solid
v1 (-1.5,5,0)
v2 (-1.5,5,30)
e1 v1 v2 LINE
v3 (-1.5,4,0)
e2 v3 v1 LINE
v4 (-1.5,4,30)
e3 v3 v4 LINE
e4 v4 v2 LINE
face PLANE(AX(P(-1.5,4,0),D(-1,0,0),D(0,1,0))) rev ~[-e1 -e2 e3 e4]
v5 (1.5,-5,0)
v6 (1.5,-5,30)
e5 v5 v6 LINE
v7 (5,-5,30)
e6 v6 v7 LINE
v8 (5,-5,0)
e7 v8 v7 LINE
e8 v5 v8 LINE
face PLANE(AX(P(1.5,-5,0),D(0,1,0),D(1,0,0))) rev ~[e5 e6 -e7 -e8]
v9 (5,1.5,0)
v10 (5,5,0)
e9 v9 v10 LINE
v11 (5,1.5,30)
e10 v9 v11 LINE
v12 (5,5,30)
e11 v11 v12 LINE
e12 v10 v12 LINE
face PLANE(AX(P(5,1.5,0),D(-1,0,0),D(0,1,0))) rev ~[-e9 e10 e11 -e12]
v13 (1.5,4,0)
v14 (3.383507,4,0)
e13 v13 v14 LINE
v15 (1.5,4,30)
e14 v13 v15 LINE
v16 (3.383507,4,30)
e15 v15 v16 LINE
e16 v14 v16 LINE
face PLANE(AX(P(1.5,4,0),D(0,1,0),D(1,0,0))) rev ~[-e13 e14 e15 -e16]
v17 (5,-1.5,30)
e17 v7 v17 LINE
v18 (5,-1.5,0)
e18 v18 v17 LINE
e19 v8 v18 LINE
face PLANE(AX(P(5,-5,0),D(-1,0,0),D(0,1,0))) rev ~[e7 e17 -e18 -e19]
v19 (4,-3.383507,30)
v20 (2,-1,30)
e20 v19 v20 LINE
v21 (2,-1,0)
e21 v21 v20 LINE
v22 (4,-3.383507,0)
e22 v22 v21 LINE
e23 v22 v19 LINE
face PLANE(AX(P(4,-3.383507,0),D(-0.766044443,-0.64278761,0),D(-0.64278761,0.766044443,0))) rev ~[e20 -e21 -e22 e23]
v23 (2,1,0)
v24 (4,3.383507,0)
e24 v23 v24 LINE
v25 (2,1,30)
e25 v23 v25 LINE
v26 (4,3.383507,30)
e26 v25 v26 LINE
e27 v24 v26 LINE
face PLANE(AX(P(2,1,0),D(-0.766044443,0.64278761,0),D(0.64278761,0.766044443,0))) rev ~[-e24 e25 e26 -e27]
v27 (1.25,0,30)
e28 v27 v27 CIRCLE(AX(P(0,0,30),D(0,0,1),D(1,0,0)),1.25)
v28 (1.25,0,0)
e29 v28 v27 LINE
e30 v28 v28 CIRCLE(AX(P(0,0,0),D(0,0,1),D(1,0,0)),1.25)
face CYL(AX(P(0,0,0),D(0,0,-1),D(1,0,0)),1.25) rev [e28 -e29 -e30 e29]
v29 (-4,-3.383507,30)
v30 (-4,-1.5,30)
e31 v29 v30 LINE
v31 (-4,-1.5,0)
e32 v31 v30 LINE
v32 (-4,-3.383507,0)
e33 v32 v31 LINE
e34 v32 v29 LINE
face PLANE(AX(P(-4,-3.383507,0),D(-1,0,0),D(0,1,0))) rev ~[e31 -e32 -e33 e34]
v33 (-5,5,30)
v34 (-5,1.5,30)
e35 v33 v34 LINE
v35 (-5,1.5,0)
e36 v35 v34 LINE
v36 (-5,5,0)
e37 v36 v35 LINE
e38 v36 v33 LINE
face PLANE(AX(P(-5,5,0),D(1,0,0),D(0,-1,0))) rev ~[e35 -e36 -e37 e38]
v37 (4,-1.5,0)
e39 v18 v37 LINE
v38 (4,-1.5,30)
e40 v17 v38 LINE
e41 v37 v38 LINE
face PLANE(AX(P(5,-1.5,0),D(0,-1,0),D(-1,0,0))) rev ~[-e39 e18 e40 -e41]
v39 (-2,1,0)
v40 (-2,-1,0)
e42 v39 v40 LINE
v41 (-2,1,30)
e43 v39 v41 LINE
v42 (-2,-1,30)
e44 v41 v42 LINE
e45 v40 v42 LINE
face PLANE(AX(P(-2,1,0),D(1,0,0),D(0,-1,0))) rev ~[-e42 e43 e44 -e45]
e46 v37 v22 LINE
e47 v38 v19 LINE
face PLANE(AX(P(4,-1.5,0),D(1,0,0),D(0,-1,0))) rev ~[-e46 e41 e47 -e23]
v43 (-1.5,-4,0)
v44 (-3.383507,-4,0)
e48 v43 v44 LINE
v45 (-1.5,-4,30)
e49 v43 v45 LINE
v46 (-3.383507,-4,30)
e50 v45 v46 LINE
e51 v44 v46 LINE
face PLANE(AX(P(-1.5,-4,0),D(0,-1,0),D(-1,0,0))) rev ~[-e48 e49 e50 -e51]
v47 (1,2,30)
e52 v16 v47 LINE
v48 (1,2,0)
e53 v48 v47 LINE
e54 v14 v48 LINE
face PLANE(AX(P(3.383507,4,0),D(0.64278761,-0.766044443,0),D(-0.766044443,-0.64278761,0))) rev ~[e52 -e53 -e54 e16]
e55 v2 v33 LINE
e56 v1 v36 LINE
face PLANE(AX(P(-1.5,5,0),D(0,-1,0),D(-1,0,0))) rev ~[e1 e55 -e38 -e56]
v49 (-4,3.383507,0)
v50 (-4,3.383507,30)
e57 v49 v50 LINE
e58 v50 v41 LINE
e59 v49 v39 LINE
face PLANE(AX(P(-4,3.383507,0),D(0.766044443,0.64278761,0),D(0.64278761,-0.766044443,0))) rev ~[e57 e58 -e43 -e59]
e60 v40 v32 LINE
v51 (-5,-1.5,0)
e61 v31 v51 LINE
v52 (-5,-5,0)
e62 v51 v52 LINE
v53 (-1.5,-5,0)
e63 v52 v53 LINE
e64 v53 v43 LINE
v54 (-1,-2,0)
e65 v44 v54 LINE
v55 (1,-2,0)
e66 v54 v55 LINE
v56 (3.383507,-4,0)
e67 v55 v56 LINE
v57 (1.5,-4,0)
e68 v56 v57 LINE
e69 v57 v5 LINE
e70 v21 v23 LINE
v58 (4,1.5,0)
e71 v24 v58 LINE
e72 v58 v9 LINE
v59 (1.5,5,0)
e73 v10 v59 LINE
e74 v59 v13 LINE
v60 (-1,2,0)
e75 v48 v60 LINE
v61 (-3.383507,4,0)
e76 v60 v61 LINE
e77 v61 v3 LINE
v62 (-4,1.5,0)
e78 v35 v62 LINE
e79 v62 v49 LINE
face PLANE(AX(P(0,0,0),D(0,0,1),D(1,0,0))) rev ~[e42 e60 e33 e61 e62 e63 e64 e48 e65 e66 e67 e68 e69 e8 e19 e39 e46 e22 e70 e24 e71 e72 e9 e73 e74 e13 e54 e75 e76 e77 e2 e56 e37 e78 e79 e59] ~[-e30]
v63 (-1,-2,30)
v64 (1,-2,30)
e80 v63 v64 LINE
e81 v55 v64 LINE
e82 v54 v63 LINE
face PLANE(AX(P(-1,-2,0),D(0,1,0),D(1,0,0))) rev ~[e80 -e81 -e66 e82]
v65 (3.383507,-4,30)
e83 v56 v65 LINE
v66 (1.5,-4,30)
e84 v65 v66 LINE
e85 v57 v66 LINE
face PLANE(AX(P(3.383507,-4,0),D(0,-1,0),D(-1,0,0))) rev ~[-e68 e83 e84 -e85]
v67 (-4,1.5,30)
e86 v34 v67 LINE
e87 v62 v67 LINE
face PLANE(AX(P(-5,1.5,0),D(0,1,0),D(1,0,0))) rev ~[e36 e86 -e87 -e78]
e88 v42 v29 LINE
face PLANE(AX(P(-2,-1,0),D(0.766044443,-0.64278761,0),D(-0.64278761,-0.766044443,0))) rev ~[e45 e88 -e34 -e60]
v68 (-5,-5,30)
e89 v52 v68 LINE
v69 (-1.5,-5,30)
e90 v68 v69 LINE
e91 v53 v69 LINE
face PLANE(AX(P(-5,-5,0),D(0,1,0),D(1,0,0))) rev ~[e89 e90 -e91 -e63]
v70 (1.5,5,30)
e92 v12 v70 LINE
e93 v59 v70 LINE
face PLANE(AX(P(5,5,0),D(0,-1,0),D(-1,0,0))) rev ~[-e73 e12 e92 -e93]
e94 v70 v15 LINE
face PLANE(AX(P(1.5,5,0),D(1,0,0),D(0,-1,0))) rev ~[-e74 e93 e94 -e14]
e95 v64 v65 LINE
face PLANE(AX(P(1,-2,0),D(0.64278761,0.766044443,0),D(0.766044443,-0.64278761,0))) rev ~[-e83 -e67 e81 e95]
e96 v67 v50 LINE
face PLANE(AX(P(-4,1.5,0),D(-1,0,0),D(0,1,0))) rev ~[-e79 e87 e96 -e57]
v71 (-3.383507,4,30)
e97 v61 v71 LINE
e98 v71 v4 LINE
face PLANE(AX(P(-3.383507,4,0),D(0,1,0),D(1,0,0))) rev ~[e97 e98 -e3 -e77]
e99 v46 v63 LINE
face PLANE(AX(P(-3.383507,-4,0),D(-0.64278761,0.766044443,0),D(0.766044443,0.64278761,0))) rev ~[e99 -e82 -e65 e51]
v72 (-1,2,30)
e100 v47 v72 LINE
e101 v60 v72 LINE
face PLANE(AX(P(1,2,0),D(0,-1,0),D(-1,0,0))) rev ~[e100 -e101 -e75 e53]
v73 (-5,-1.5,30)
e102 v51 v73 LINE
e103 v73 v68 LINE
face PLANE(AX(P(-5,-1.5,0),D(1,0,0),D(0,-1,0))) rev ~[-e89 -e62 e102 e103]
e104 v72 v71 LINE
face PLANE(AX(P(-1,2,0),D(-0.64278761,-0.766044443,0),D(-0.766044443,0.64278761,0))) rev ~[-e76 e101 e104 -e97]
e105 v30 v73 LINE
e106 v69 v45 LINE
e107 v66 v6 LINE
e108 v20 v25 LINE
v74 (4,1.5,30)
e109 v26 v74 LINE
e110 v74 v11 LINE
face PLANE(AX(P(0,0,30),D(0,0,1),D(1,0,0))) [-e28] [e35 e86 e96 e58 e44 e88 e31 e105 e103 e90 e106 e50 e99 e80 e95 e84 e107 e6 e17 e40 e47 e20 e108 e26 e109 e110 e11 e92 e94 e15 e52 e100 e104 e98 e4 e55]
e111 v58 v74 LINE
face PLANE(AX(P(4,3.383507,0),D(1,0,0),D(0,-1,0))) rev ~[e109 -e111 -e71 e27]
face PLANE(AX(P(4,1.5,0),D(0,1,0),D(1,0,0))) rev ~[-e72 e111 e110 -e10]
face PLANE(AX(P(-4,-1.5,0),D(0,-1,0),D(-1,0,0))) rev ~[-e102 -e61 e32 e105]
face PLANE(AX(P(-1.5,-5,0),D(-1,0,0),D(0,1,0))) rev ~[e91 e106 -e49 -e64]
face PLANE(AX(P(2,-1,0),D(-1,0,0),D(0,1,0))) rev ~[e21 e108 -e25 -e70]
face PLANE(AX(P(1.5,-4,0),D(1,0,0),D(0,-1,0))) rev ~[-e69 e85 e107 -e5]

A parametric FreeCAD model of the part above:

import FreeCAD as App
import Part
import Sketcher

V = App.Vector
Q = App.Units.Quantity

doc = App.newDocument("Part")
body = doc.addObject("PartDesign::Body", "Body")

# Sketch on XY plane
sketch1 = doc.addObject("Sketcher::SketchObject", "Sketch")
body.addObject(sketch1)
sketch1.AttachmentSupport = (doc.XY_Plane, [""])
sketch1.MapMode = "FlatFace"
sketch1.addGeometry(Part.LineSegment(V(-1, -2, 0), V(1, -2, 0)), False)
sketch1.addGeometry(Part.LineSegment(V(1, -2, 0), V(3.4, -4, 0)), False)
sketch1.addGeometry(Part.LineSegment(V(3.4, -4, 0), V(1.5, -4, 0)), False)
sketch1.addGeometry(Part.LineSegment(V(1.5, -4, 0), V(1.5, -5, 0)), False)
sketch1.addGeometry(Part.LineSegment(V(1.5, -5, 0), V(5, -5, 0)), False)
sketch1.addGeometry(Part.LineSegment(V(5, -5, 0), V(5, -1.5, 0)), False)
sketch1.addGeometry(Part.LineSegment(V(5, -1.5, 0), V(4, -1.5, 0)), False)
sketch1.addGeometry(Part.LineSegment(V(4, -1.5, 0), V(4, -3.4, 0)), False)
sketch1.addGeometry(Part.LineSegment(V(4, -3.4, 0), V(2, -1, 0)), False)
sketch1.addGeometry(Part.LineSegment(V(2, -1, 0), V(2, 1, 0)), False)
sketch1.addGeometry(Part.LineSegment(V(2, 1, 0), V(4, 3.4, 0)), False)
sketch1.addGeometry(Part.LineSegment(V(4, 3.4, 0), V(4, 1.5, 0)), False)
sketch1.addGeometry(Part.LineSegment(V(4, 1.5, 0), V(5, 1.5, 0)), False)
sketch1.addGeometry(Part.LineSegment(V(5, 1.5, 0), V(5, 5, 0)), False)
sketch1.addGeometry(Part.LineSegment(V(5, 5, 0), V(1.5, 5, 0)), False)
sketch1.addGeometry(Part.LineSegment(V(1.5, 5, 0), V(1.5, 4, 0)), False)
sketch1.addGeometry(Part.LineSegment(V(1.5, 4, 0), V(3.4, 4, 0)), False)
sketch1.addGeometry(Part.LineSegment(V(3.4, 4, 0), V(1, 2, 0)), False)
sketch1.addGeometry(Part.LineSegment(V(1, 2, 0), V(-1, 2, 0)), False)
sketch1.addGeometry(Part.LineSegment(V(-1, 2, 0), V(-3.4, 4, 0)), False)
sketch1.addGeometry(Part.LineSegment(V(-3.4, 4, 0), V(-1.5, 4, 0)), False)
sketch1.addGeometry(Part.LineSegment(V(-1.5, 4, 0), V(-1.5, 5, 0)), False)
sketch1.addGeometry(Part.LineSegment(V(-1.5, 5, 0), V(-5, 5, 0)), False)
sketch1.addGeometry(Part.LineSegment(V(-5, 5, 0), V(-5, 1.5, 0)), False)
sketch1.addGeometry(Part.LineSegment(V(-5, 1.5, 0), V(-4, 1.5, 0)), False)
sketch1.addGeometry(Part.LineSegment(V(-4, 1.5, 0), V(-4, 3.4, 0)), False)
sketch1.addGeometry(Part.LineSegment(V(-4, 3.4, 0), V(-2, 1, 0)), False)
sketch1.addGeometry(Part.LineSegment(V(-2, 1, 0), V(-2, -1, 0)), False)
sketch1.addGeometry(Part.LineSegment(V(-2, -1, 0), V(-4, -3.4, 0)), False)
sketch1.addGeometry(Part.LineSegment(V(-4, -3.4, 0), V(-4, -1.5, 0)), False)
sketch1.addGeometry(Part.LineSegment(V(-4, -1.5, 0), V(-5, -1.5, 0)), False)
sketch1.addGeometry(Part.LineSegment(V(-5, -1.5, 0), V(-5, -5, 0)), False)
sketch1.addGeometry(Part.LineSegment(V(-5, -5, 0), V(-1.5, -5, 0)), False)
sketch1.addGeometry(Part.LineSegment(V(-1.5, -5, 0), V(-1.5, -4, 0)), False)
sketch1.addGeometry(Part.LineSegment(V(-1.5, -4, 0), V(-3.4, -4, 0)), False)
sketch1.addGeometry(Part.LineSegment(V(-3.4, -4, 0), V(-1, -2, 0)), False)
sketch1.addGeometry(Part.Circle(V(0, 0, 0), V(0, 0, 1), 1.2), False)
sketch1.addConstraint(Sketcher.Constraint("Coincident", 0, 2, 1, 1))
sketch1.addConstraint(Sketcher.Constraint("Coincident", 1, 2, 2, 1))
sketch1.addConstraint(Sketcher.Constraint("Coincident", 2, 2, 3, 1))
sketch1.addConstraint(Sketcher.Constraint("Coincident", 3, 2, 4, 1))
sketch1.addConstraint(Sketcher.Constraint("Coincident", 4, 2, 5, 1))
sketch1.addConstraint(Sketcher.Constraint("Coincident", 5, 2, 6, 1))
sketch1.addConstraint(Sketcher.Constraint("Coincident", 6, 2, 7, 1))
sketch1.addConstraint(Sketcher.Constraint("Coincident", 7, 2, 8, 1))
sketch1.addConstraint(Sketcher.Constraint("Coincident", 8, 2, 9, 1))
sketch1.addConstraint(Sketcher.Constraint("Coincident", 9, 2, 10, 1))
sketch1.addConstraint(Sketcher.Constraint("Coincident", 10, 2, 11, 1))
sketch1.addConstraint(Sketcher.Constraint("Coincident", 11, 2, 12, 1))
sketch1.addConstraint(Sketcher.Constraint("Coincident", 12, 2, 13, 1))
sketch1.addConstraint(Sketcher.Constraint("Coincident", 13, 2, 14, 1))
sketch1.addConstraint(Sketcher.Constraint("Coincident", 14, 2, 15, 1))
sketch1.addConstraint(Sketcher.Constraint("Coincident", 15, 2, 16, 1))
sketch1.addConstraint(Sketcher.Constraint("Coincident", 16, 2, 17, 1))
sketch1.addConstraint(Sketcher.Constraint("Coincident", 17, 2, 18, 1))
sketch1.addConstraint(Sketcher.Constraint("Coincident", 18, 2, 19, 1))
sketch1.addConstraint(Sketcher.Constraint("Coincident", 19, 2, 20, 1))
sketch1.addConstraint(Sketcher.Constraint("Coincident", 20, 2, 21, 1))
sketch1.addConstraint(Sketcher.Constraint("Coincident", 21, 2, 22, 1))
sketch1.addConstraint(Sketcher.Constraint("Coincident", 22, 2, 23, 1))
sketch1.addConstraint(Sketcher.Constraint("Coincident", 23, 2, 24, 1))
sketch1.addConstraint(Sketcher.Constraint("Coincident", 24, 2, 25, 1))
sketch1.addConstraint(Sketcher.Constraint("Coincident", 25, 2, 26, 1))
sketch1.addConstraint(Sketcher.Constraint("Coincident", 26, 2, 27, 1))
sketch1.addConstraint(Sketcher.Constraint("Coincident", 27, 2, 28, 1))
sketch1.addConstraint(Sketcher.Constraint("Coincident", 28, 2, 29, 1))
sketch1.addConstraint(Sketcher.Constraint("Coincident", 29, 2, 30, 1))
sketch1.addConstraint(Sketcher.Constraint("Coincident", 30, 2, 31, 1))
sketch1.addConstraint(Sketcher.Constraint("Coincident", 31, 2, 32, 1))
sketch1.addConstraint(Sketcher.Constraint("Coincident", 32, 2, 33, 1))
sketch1.addConstraint(Sketcher.Constraint("Coincident", 33, 2, 34, 1))
sketch1.addConstraint(Sketcher.Constraint("Coincident", 34, 2, 35, 1))
sketch1.addConstraint(Sketcher.Constraint("Coincident", 35, 2, 0, 1))
sketch1.addConstraint(Sketcher.Constraint("Horizontal", 0))
sketch1.addConstraint(Sketcher.Constraint("Horizontal", 2))
sketch1.addConstraint(Sketcher.Constraint("Vertical", 3))
sketch1.addConstraint(Sketcher.Constraint("Horizontal", 4))
sketch1.addConstraint(Sketcher.Constraint("Vertical", 5))
sketch1.addConstraint(Sketcher.Constraint("Horizontal", 6))
sketch1.addConstraint(Sketcher.Constraint("Vertical", 7))
sketch1.addConstraint(Sketcher.Constraint("Vertical", 9))
sketch1.addConstraint(Sketcher.Constraint("Vertical", 11))
sketch1.addConstraint(Sketcher.Constraint("Horizontal", 12))
sketch1.addConstraint(Sketcher.Constraint("Vertical", 13))
sketch1.addConstraint(Sketcher.Constraint("Horizontal", 14))
sketch1.addConstraint(Sketcher.Constraint("Vertical", 15))
sketch1.addConstraint(Sketcher.Constraint("Horizontal", 16))
sketch1.addConstraint(Sketcher.Constraint("Horizontal", 18))
sketch1.addConstraint(Sketcher.Constraint("Horizontal", 20))
sketch1.addConstraint(Sketcher.Constraint("Vertical", 21))
sketch1.addConstraint(Sketcher.Constraint("Horizontal", 22))
sketch1.addConstraint(Sketcher.Constraint("Vertical", 23))
sketch1.addConstraint(Sketcher.Constraint("Horizontal", 24))
sketch1.addConstraint(Sketcher.Constraint("Vertical", 25))
sketch1.addConstraint(Sketcher.Constraint("Vertical", 27))
sketch1.addConstraint(Sketcher.Constraint("Vertical", 29))
sketch1.addConstraint(Sketcher.Constraint("Horizontal", 30))
sketch1.addConstraint(Sketcher.Constraint("Vertical", 31))
sketch1.addConstraint(Sketcher.Constraint("Horizontal", 32))
sketch1.addConstraint(Sketcher.Constraint("Vertical", 33))
sketch1.addConstraint(Sketcher.Constraint("Horizontal", 34))
sketch1.addConstraint(Sketcher.Constraint("Coincident", 36, 3, -1, 1))
sketch1.addConstraint(Sketcher.Constraint("Symmetric", 0, 2, 18, 2, -1, 1))
sketch1.addConstraint(Sketcher.Constraint("Symmetric", 1, 2, 19, 2, -1, 1))
sketch1.addConstraint(Sketcher.Constraint("Symmetric", 3, 2, 21, 2, -1, 1))
sketch1.addConstraint(Sketcher.Constraint("Symmetric", 5, 2, 23, 2, -1, 1))
sketch1.addConstraint(Sketcher.Constraint("Symmetric", 7, 2, 25, 2, -1, 1))
sketch1.addConstraint(Sketcher.Constraint("Symmetric", 8, 2, 26, 2, -1, 1))
sketch1.addConstraint(Sketcher.Constraint("Symmetric", 10, 2, 28, 2, -1, 1))
sketch1.addConstraint(Sketcher.Constraint("Symmetric", 12, 2, 30, 2, -1, 1))
sketch1.addConstraint(Sketcher.Constraint("Symmetric", 14, 2, 32, 2, -1, 1))
sketch1.addConstraint(Sketcher.Constraint("Symmetric", 16, 2, 34, 2, -1, 1))
sketch1.addConstraint(Sketcher.Constraint("Symmetric", 16, 2, 19, 2, -2))
sketch1.addConstraint(Sketcher.Constraint("Symmetric", 14, 2, 21, 2, -2))
sketch1.addConstraint(Sketcher.Constraint("Symmetric", 12, 2, 23, 2, -2))
sketch1.addConstraint(Sketcher.Constraint("Symmetric", 10, 2, 25, 2, -2))
sketch1.addConstraint(Sketcher.Constraint("Perpendicular", 1, 10))
sketch1.addConstraint(Sketcher.Constraint("Perpendicular", 8, 17))
sketch1.addConstraint(Sketcher.Constraint("Perpendicular", 19, 28))
sketch1.addConstraint(Sketcher.Constraint("Perpendicular", 26, 35))
sketch1.addConstraint(Sketcher.Constraint("Horizontal", 9, 2, 26, 2))
sketch1.addConstraint(Sketcher.Constraint("Equal", 30, 3))
sketch1.addConstraint(Sketcher.Constraint("Equal", 32, 5))
sketch1.addConstraint(Sketcher.Constraint("Equal", 34, 7))
sketch1.addConstraint(Sketcher.Constraint("Equal", 18, 9))
sketch1.addConstraint(Sketcher.Constraint("Equal", 1, 8))
sketch1.addConstraint(Sketcher.Constraint("Diameter", 36, 2.5))
sketch1.addConstraint(Sketcher.Constraint("DistanceX", 0, 1, 0, 2, 2.0))
sketch1.addConstraint(Sketcher.Constraint("DistanceX", 6, 2, 6, 1, 1.0))
sketch1.addConstraint(Sketcher.Constraint("Angle", 1, Q("-40 deg")))
sketch1.addConstraint(Sketcher.Constraint("DistanceX", 4, 1, 4, 2, 3.5))
sketch1.addConstraint(Sketcher.Constraint("DistanceY", 0, 2, -1, 1, 2.0))
sketch1.addConstraint(Sketcher.Constraint("DistanceY", 1, 2, -1, 1, 4.0))
pad1 = doc.addObject("PartDesign::Pad", "Pad")
body.addObject(pad1)
pad1.Profile = sketch1
pad1.Length = 30

doc.recompute()
